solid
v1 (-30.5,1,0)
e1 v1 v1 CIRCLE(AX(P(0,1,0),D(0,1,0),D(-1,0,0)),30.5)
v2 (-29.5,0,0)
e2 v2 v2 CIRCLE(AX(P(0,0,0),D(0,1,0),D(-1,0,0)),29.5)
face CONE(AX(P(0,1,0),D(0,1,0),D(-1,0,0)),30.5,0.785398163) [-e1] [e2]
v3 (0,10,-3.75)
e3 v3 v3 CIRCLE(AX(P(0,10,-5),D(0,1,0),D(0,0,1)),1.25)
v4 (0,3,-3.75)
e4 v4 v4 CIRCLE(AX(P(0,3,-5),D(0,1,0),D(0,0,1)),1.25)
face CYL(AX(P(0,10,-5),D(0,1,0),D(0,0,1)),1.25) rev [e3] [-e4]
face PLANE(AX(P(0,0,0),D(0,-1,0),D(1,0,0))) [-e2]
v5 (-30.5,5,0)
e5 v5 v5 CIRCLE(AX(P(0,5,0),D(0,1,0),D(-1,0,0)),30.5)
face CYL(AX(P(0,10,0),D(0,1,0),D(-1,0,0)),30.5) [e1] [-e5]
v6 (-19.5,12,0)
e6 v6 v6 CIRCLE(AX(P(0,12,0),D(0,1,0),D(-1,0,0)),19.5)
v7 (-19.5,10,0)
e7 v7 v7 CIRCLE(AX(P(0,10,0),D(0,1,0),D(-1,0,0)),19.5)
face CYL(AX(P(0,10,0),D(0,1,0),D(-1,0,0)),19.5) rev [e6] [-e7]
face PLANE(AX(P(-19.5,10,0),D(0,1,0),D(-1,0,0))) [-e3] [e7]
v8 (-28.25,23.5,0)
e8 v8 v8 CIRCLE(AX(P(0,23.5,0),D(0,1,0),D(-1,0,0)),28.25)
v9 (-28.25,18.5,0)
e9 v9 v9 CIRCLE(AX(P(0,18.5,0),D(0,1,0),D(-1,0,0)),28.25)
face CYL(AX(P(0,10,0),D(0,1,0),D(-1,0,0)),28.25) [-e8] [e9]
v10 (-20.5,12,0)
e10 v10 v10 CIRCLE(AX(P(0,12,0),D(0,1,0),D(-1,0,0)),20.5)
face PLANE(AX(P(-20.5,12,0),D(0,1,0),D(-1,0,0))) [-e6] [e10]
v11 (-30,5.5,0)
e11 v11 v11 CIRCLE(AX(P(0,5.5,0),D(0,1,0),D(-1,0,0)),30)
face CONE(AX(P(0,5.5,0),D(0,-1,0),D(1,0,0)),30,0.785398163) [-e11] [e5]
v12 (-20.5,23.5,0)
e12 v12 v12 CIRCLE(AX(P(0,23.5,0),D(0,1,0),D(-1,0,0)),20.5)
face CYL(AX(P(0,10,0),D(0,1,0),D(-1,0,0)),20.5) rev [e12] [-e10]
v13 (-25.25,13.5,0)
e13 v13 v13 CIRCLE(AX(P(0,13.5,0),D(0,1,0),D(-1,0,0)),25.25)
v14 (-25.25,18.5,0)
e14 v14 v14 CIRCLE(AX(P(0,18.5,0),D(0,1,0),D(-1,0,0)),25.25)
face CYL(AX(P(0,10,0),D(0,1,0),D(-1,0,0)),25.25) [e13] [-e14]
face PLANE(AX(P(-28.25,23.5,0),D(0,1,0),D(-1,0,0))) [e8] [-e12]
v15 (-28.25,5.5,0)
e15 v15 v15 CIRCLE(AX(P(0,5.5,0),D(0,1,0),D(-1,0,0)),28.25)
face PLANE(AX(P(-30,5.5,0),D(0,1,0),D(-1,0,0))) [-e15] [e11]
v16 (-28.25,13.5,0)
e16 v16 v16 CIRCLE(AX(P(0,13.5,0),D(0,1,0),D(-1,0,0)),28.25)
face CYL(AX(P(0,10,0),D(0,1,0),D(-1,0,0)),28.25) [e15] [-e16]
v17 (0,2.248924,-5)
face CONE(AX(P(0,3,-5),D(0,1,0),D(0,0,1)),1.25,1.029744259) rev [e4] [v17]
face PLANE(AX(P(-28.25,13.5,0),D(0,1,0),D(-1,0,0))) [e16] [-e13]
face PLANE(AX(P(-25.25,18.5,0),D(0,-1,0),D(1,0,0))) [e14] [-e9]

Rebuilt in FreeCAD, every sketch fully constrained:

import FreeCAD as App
import Part
import Sketcher
Q = App.Units.Quantity

doc = App.newDocument("Part")
body = doc.addObject("PartDesign::Body", "Body")

# Sketch on XY plane
sketch1 = body.newObject("Sketcher::SketchObject", "Sketch")
sketch1.AttachmentSupport = (doc.getObject("XY_Plane"), [""])
sketch1.MapMode = "FlatFace"
sketch1.addGeometry([
    Part.LineSegment(App.Vector(-29.5, 0, 0), App.Vector(0, 0, 0)),  # 0
    Part.LineSegment(App.Vector(0, 0, 0), App.Vector(0, 10, 0)),  # 1
    Part.LineSegment(App.Vector(0, 10, 0), App.Vector(-19.5, 10, 0)),  # 2
    Part.LineSegment(App.Vector(-19.5, 10, 0), App.Vector(-19.5, 12, 0)),  # 3
    Part.LineSegment(App.Vector(-19.5, 12, 0), App.Vector(-20.5, 12, 0)),  # 4
    Part.LineSegment(App.Vector(-20.5, 12, 0), App.Vector(-20.5, 23.5, 0)),  # 5
    Part.LineSegment(App.Vector(-20.5, 23.5, 0), App.Vector(-28.2, 23.5, 0)),  # 6
    Part.LineSegment(App.Vector(-28.2, 23.5, 0), App.Vector(-28.2, 18.5, 0)),  # 7
    Part.LineSegment(App.Vector(-28.2, 18.5, 0), App.Vector(-25.2, 18.5, 0)),  # 8
    Part.LineSegment(App.Vector(-25.2, 18.5, 0), App.Vector(-25.2, 13.5, 0)),  # 9
    Part.LineSegment(App.Vector(-25.2, 13.5, 0), App.Vector(-28.2, 13.5, 0)),  # 10
    Part.LineSegment(App.Vector(-28.2, 13.5, 0), App.Vector(-28.2, 5.5, 0)),  # 11
    Part.LineSegment(App.Vector(-28.2, 5.5, 0), App.Vector(-30, 5.5, 0)),  # 12
    Part.LineSegment(App.Vector(-30, 5.5, 0), App.Vector(-30.5, 5, 0)),  # 13
    Part.LineSegment(App.Vector(-30.5, 5, 0), App.Vector(-30.5, 1, 0)),  # 14
    Part.LineSegment(App.Vector(-30.5, 1, 0), App.Vector(-29.5, 0, 0)),  # 15
], False)
sketch1.addConstraint([
    Sketcher.Constraint("Coincident", 0, 2, 1, 1),
    Sketcher.Constraint("Coincident", 1, 2, 2, 1),
    Sketcher.Constraint("Coincident", 2, 2, 3, 1),
    Sketcher.Constraint("Coincident", 3, 2, 4, 1),
    Sketcher.Constraint("Coincident", 4, 2, 5, 1),
    Sketcher.Constraint("Coincident", 5, 2, 6, 1),
    Sketcher.Constraint("Coincident", 6, 2, 7, 1),
    Sketcher.Constraint("Coincident", 7, 2, 8, 1),
    Sketcher.Constraint("Coincident", 8, 2, 9, 1),
    Sketcher.Constraint("Coincident", 9, 2, 10, 1),
    Sketcher.Constraint("Coincident", 10, 2, 11, 1),
    Sketcher.Constraint("Coincident", 11, 2, 12, 1),
    Sketcher.Constraint("Coincident", 12, 2, 13, 1),
    Sketcher.Constraint("Coincident", 13, 2, 14, 1),
    Sketcher.Constraint("Coincident", 14, 2, 15, 1),
    Sketcher.Constraint("Coincident", 15, 2, 0, 1),
    Sketcher.Constraint("Horizontal", 0),
    Sketcher.Constraint("Vertical", 1),
    Sketcher.Constraint("Horizontal", 2),
    Sketcher.Constraint("Vertical", 3),
    Sketcher.Constraint("Horizontal", 4),
    Sketcher.Constraint("Vertical", 5),
    Sketcher.Constraint("Horizontal", 6),
    Sketcher.Constraint("Vertical", 7),
    Sketcher.Constraint("Horizontal", 8),
    Sketcher.Constraint("Vertical", 9),
    Sketcher.Constraint("Horizontal", 10),
    Sketcher.Constraint("Vertical", 11),
    Sketcher.Constraint("Horizontal", 12),
    Sketcher.Constraint("Vertical", 14),
    Sketcher.Constraint("Coincident", 0, 2, -1, 1),
    Sketcher.Constraint("Perpendicular", 13, 15),
    Sketcher.Constraint("Vertical", 7, 2, 10, 2),
    Sketcher.Constraint("Equal", 7, 9),
    Sketcher.Constraint("DistanceX", 4, 2, 4, 1, Q("1 mm")),
    Sketcher.Constraint("DistanceX", 8, 1, 8, 2, Q("3 mm")),
    Sketcher.Constraint("DistanceY", 1, 1, 1, 2, Q("10 mm")),
    Sketcher.Constraint("DistanceY", 3, 1, 3, 2, Q("2 mm")),
    Sketcher.Constraint("DistanceY", 7, 2, 7, 1, Q("5 mm")),
    Sketcher.Constraint("DistanceY", 11, 2, 11, 1, Q("8 mm")),
    Sketcher.Constraint("DistanceY", 14, 2, 14, 1, Q("4 mm")),
    Sketcher.Constraint("Angle", 13, Q("-135 deg")),
    Sketcher.Constraint("DistanceX", 0, 1, 0, 2, Q("29.5 mm")),
    Sketcher.Constraint("DistanceX", 2, 2, 2, 1, Q("19.5 mm")),
    Sketcher.Constraint("DistanceY", 5, 1, 5, 2, Q("11.5 mm")),
    Sketcher.Constraint("DistanceX", 12, 2, -1, 1, Q("30 mm")),
    Sketcher.Constraint("DistanceX", 6, 2, 6, 1, Q("7.75 mm")),
])
revolution = body.newObject("PartDesign::Revolution", "Revolution")
revolution.Profile = sketch1
revolution.ReferenceAxis = (sketch1, ["V_Axis"])
revolution.Angle = 360

# Sketch on XZ plane
sketch2 = body.newObject("Sketcher::SketchObject", "Sketch001")
sketch2.AttachmentSupport = (doc.getObject("XZ_Plane"), [""])
sketch2.MapMode = "FlatFace"
sketch2.AttachmentOffset = App.Placement(App.Vector(0, 0, -10), App.Rotation())
sketch2.addGeometry(Part.Circle(App.Vector(0, -5, 0), App.Vector(0, 0, 1), 1.2), False)
sketch2.addConstraint([
    Sketcher.Constraint("PointOnObject", 0, 3, -2),
    Sketcher.Constraint("Diameter", 0, Q("2.5 mm")),
    Sketcher.Constraint("DistanceY", 0, 3, -1, 1, Q("5 mm")),
])
doc.recompute()
hole = body.newObject("PartDesign::Hole", "Hole")
hole.Profile = sketch2
hole.ThreadType = "None"
hole.Diameter = 2.5
hole.DepthType = "Dimension"
hole.Depth = 7
hole.DrillPoint = "Angled"
hole.DrillPointAngle = 118
hole.Reversed = True

doc.recompute()
